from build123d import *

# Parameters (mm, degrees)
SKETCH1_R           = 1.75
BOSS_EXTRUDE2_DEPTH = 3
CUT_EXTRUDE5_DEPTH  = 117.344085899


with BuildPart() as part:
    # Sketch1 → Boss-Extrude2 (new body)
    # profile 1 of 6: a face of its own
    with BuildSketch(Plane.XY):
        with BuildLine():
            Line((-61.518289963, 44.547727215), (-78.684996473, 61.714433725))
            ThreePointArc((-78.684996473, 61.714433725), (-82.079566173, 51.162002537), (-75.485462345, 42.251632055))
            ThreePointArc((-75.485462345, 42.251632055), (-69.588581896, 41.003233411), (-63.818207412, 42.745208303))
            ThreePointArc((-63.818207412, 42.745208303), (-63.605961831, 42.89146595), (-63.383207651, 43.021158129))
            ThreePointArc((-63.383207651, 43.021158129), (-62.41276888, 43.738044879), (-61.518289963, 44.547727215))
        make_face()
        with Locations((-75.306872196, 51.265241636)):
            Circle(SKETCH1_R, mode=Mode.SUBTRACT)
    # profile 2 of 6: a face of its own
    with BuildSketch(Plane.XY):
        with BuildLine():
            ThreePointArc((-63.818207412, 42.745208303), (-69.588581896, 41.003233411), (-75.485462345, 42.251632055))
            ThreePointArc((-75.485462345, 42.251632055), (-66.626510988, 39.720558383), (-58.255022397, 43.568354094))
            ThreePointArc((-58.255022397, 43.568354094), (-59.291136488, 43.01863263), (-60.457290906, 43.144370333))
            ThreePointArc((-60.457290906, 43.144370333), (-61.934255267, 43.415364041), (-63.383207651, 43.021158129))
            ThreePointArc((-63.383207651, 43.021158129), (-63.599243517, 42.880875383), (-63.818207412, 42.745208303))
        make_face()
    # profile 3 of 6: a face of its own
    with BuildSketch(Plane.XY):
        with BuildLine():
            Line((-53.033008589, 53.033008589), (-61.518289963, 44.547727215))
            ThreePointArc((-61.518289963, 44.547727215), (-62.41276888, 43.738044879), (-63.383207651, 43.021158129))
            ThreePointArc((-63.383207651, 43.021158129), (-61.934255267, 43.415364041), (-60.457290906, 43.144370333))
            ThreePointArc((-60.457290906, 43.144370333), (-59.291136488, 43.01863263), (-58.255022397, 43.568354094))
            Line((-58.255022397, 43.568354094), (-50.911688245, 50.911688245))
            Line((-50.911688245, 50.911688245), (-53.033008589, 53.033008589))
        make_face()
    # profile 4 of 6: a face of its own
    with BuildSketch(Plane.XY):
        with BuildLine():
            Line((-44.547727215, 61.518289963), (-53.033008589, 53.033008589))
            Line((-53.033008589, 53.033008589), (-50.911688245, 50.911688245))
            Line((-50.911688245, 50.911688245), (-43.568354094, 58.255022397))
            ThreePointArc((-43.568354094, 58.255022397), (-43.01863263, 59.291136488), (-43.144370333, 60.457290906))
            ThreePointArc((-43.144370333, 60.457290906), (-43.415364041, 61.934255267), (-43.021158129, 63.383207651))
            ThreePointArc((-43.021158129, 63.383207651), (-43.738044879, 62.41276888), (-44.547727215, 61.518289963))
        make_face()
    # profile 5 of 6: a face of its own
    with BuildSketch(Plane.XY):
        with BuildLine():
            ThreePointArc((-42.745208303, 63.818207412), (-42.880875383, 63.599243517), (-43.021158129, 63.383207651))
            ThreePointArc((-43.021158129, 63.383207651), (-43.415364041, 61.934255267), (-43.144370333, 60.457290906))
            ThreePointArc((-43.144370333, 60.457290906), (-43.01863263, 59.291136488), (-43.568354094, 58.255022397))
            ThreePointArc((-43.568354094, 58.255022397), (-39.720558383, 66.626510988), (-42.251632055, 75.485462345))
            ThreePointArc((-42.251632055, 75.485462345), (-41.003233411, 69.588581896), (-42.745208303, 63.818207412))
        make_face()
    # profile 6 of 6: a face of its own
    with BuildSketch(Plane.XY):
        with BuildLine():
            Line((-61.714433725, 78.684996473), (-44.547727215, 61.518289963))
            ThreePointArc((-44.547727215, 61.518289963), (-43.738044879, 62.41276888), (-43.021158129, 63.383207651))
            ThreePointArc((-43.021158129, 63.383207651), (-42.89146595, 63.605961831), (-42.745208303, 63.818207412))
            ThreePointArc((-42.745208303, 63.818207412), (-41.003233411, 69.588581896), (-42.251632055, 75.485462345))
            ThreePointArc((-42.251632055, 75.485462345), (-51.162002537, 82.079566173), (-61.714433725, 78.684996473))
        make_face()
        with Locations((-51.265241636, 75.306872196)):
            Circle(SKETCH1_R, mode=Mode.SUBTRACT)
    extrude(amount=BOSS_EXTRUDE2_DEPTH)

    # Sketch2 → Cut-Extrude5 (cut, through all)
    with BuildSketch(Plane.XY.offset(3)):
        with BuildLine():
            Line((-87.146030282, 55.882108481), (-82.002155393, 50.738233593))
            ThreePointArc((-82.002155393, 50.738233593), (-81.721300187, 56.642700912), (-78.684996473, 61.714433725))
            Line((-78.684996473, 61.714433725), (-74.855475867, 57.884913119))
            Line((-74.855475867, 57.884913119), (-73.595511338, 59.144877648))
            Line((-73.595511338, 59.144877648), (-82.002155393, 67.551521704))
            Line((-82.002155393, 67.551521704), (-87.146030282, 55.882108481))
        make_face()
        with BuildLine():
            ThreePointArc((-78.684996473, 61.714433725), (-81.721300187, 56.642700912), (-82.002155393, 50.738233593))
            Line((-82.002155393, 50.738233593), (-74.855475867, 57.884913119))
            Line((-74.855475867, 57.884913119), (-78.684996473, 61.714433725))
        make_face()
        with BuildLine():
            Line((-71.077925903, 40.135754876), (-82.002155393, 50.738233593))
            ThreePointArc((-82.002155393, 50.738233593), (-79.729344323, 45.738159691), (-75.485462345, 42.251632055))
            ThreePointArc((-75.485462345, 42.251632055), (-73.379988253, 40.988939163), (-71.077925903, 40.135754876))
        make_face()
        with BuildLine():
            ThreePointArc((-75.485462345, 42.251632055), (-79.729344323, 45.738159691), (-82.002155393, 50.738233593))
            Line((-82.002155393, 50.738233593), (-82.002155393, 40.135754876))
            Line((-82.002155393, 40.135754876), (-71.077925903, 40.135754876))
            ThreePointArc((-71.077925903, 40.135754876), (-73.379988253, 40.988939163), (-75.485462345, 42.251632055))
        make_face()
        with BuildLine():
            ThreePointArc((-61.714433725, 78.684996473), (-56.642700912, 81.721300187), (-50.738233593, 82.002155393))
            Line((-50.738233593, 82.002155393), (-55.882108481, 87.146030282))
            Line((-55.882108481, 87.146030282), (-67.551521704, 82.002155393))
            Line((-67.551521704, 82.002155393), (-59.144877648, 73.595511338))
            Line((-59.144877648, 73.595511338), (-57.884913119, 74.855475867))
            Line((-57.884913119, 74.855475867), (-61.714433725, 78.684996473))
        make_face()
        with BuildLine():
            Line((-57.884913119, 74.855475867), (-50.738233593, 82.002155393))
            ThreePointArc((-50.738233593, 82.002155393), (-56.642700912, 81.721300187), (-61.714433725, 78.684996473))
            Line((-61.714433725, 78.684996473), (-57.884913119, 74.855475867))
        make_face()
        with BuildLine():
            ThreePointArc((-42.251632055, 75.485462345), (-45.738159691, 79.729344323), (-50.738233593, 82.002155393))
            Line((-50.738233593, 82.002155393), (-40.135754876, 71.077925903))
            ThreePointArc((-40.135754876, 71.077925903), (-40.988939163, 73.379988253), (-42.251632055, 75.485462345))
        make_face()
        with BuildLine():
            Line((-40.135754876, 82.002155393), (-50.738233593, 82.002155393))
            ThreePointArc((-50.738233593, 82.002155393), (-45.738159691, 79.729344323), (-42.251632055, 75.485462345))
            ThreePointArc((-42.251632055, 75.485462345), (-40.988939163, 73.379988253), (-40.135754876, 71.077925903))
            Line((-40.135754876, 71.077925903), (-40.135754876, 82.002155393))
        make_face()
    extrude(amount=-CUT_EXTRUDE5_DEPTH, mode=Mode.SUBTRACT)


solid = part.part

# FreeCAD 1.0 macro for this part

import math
import FreeCAD as App
import Part
import Sketcher
Q = App.Units.Quantity

doc = App.newDocument("Part")
params = doc.addObject("Spreadsheet::Sheet", "Params")
for row, (alias, value) in enumerate([
    ("sketch1_diameter", "3.5 mm"),
    ("sketch1_length", "24 mm"),
    ("pad1_length", "3 mm"),
], start=1):
    params.set(f"A{row}", alias)
    params.set(f"B{row}", "=" + value)
    params.setAlias(f"B{row}", alias)

body = doc.addObject("PartDesign::Body", "Body")

# Sketch on XY plane
sketch1 = doc.addObject("Sketcher::SketchObject", "Sketch")
body.addObject(sketch1)
sketch1.AttachmentSupport = (doc.XY_Plane, [""])
sketch1.MapMode = "FlatFace"
sketch1.addGeometry(Part.LineSegment(App.Vector(-61.5, 44.5, 0), App.Vector(-78.7, 61.7, 0)), False)
sketch1.addGeometry(Part.ArcOfCircle(Part.Circle(App.Vector(-70.1, 53.1, 0), App.Vector(0, 0, 1), 12.1), math.radians(135), math.radians(244)), False)
sketch1.addGeometry(Part.ArcOfCircle(Part.Circle(App.Vector(-67.6, 53, 0), App.Vector(0, 0, 1), 13.3), math.radians(-126), math.radians(-45)), False)
sketch1.addGeometry(Part.LineSegment(App.Vector(-58.3, 43.6, 0), App.Vector(-50.9, 50.9, 0)), False)
sketch1.addGeometry(Part.LineSegment(App.Vector(-50.9, 50.9, 0), App.Vector(-43.6, 58.3, 0)), False)
sketch1.addGeometry(Part.ArcOfCircle(Part.Circle(App.Vector(-53, 67.6, 0), App.Vector(0, 0, 1), 13.3), math.radians(-45), math.radians(36)), False)
sketch1.addGeometry(Part.ArcOfCircle(Part.Circle(App.Vector(-53.1, 70.1, 0), App.Vector(0, 0, 1), 12.1), math.radians(26), math.radians(135)), False)
sketch1.addGeometry(Part.LineSegment(App.Vector(-61.7, 78.7, 0), App.Vector(-44.5, 61.5, 0)), False)
sketch1.addGeometry(Part.LineSegment(App.Vector(-44.5, 61.5, 0), App.Vector(-61.5, 44.5, 0)), False)
sketch1.addGeometry(Part.ArcOfCircle(Part.Circle(App.Vector(-61.8, 40, 0), App.Vector(0, 0, 1), 3.4), math.radians(118.03), math.radians(126.75)), False)
sketch1.addGeometry(Part.ArcOfCircle(Part.Circle(App.Vector(-70.1, 53.1, 0), App.Vector(0, 0, 1), 12.1), math.radians(-58.83), math.radians(-56.39)), False)
sketch1.addGeometry(Part.Circle(App.Vector(-75.3, 51.3, 0), App.Vector(0, 0, 1), 1.8), False)
sketch1.addGeometry(Part.Circle(App.Vector(-51.3, 75.3, 0), App.Vector(0, 0, 1), 1.8), False)
sketch1.addGeometry(Part.ArcOfCircle(Part.Circle(App.Vector(-40, 61.8, 0), App.Vector(0, 0, 1), 3.4), math.radians(143.25), math.radians(151.97)), False)
sketch1.addGeometry(Part.ArcOfCircle(Part.Circle(App.Vector(-53.1, 70.1, 0), App.Vector(0, 0, 1), 12.1), math.radians(-33.61), math.radians(-31.17)), False)
sketch1.addConstraint(Sketcher.Constraint("Coincident", 0, 2, 1, 1))
sketch1.addConstraint(Sketcher.Constraint("Coincident", 1, 2, 2, 1))
sketch1.addConstraint(Sketcher.Constraint("Tangent", 2, 2, 3, 1))
sketch1.addConstraint(Sketcher.Constraint("Coincident", 3, 2, 4, 1))
sketch1.addConstraint(Sketcher.Constraint("Tangent", 4, 2, 5, 1))
sketch1.addConstraint(Sketcher.Constraint("Coincident", 5, 2, 6, 1))
sketch1.addConstraint(Sketcher.Constraint("Coincident", 6, 2, 7, 1))
sketch1.addConstraint(Sketcher.Constraint("Coincident", 7, 2, 8, 1))
sketch1.addConstraint(Sketcher.Constraint("Coincident", 8, 2, 0, 1))
sketch1.addConstraint(Sketcher.Constraint("Coincident", 9, 1, 10, 2))
sketch1.addConstraint(Sketcher.Constraint("Coincident", 10, 1, 9, 2))
sketch1.addConstraint(Sketcher.Constraint("Coincident", 13, 1, 14, 2))
sketch1.addConstraint(Sketcher.Constraint("Coincident", 14, 1, 13, 2))
sketch1.addConstraint(Sketcher.Constraint("Coincident", 10, 3, 1, 3))
sketch1.addConstraint(Sketcher.Constraint("Coincident", 14, 3, 6, 3))
sketch1.addConstraint(Sketcher.Constraint("Equal", 2, 5))
sketch1.addConstraint(Sketcher.Constraint("Equal", 1, 6))
sketch1.addConstraint(Sketcher.Constraint("Equal", 6, 10))
sketch1.addConstraint(Sketcher.Constraint("Equal", 11, 12))
sketch1.addConstraint(Sketcher.Constraint("Equal", 9, 13))
sketch1.addConstraint(Sketcher.Constraint("Equal", 10, 14))
sketch1.addConstraint(Sketcher.Constraint("Perpendicular", 0, 3))
sketch1.addConstraint(Sketcher.Constraint("Parallel", 3, 4))
sketch1.addConstraint(Sketcher.Constraint("Perpendicular", 4, 7))
sketch1.addConstraint(Sketcher.Constraint("Perpendicular", 7, 8))
sketch1.addConstraint(Sketcher.Constraint("Equal", 3, 4))
sketch1.addConstraint(Sketcher.Constraint("Equal", 0, 7))
sketch1.addConstraint(Sketcher.Constraint("Diameter", 11, 3.5))
sketch1.addConstraint(Sketcher.Constraint("Angle", 0, Q("135 deg")))
sketch1.addConstraint(Sketcher.Constraint("Distance", 8, 24.0))
sketch1.addConstraint(Sketcher.Constraint("Radius", 2, 13.268899))
sketch1.addConstraint(Sketcher.Constraint("Radius", 9, 3.38675))
sketch1.addConstraint(Sketcher.Constraint("Radius", 1, 12.138695))
sketch1.addConstraint(Sketcher.Constraint("DistanceX", 10, 1, 9, 1, 0.435))
sketch1.addConstraint(Sketcher.Constraint("DistanceY", 14, 1, 13, 1, 0.435))
sketch1.addConstraint(Sketcher.Constraint("DistanceY", 2, 3, 1, 3, 0.180198))
sketch1.addConstraint(Sketcher.Constraint("DistanceX", 6, 3, 5, 3, 0.180198))
sketch1.addConstraint(Sketcher.Constraint("DistanceX", 1, 3, 12, 3, 18.836402))
sketch1.addConstraint(Sketcher.Constraint("DistanceX", 1, 2, 9, 3, 13.693699))
sketch1.addConstraint(Sketcher.Constraint("DistanceY", 13, 3, 5, 2, 13.693699))
sketch1.addConstraint(Sketcher.Constraint("DistanceX", 6, 2, 5, 2, 19.462802))
sketch1.addConstraint(Sketcher.Constraint("Distance", 0, 24.277389))
sketch1.addConstraint(Sketcher.Constraint("DistanceY", -1, 1, 1, 3, 53.13108))
sketch1.addConstraint(Sketcher.Constraint("DistanceX", 2, 3, -1, 1, 67.637551))
sketch1.addConstraint(Sketcher.Constraint("DistanceY", -1, 1, 5, 3, 67.637551))
sketch1.addConstraint(Sketcher.Constraint("DistanceY", -1, 1, 11, 3, 51.265242))
sketch1.addConstraint(Sketcher.Constraint("DistanceX", 12, 3, -1, 1, 51.265242))
sketch1.addConstraint(Sketcher.Constraint("DistanceX", 11, 3, 10, 3, 5.205228))
sketch1.addConstraint(Sketcher.Constraint("DistanceY", 6, 3, 12, 3, 5.205229))
sketch1.setExpression("Constraints[27]", "Params.sketch1_diameter")
sketch1.setExpression("Constraints[29]", "Params.sketch1_length")
pad1 = doc.addObject("PartDesign::Pad", "Pad")
body.addObject(pad1)
pad1.Profile = sketch1
pad1.setExpression("Length", "Params.pad1_length")

# Sketch on XY plane
sketch2 = doc.addObject("Sketcher::SketchObject", "Sketch001")
body.addObject(sketch2)
sketch2.AttachmentSupport = (doc.XY_Plane, [""])
sketch2.MapMode = "FlatFace"
sketch2.AttachmentOffset = App.Placement(App.Vector(0, 0, 3), App.Rotation())
sketch2.addGeometry(Part.LineSegment(App.Vector(-87, 56, 0), App.Vector(-82, 51, 0)), False)
sketch2.addGeometry(Part.LineSegment(App.Vector(-82, 51, 0), App.Vector(-74, 59, 0)), False)
sketch2.addGeometry(Part.LineSegment(App.Vector(-74, 59, 0), App.Vector(-82, 68, 0)), False)
sketch2.addGeometry(Part.LineSegment(App.Vector(-82, 68, 0), App.Vector(-87, 56, 0)), False)
sketch2.addGeometry(Part.LineSegment(App.Vector(-71, 40, 0), App.Vector(-82, 51, 0)), False)
sketch2.addGeometry(Part.LineSegment(App.Vector(-82, 51, 0), App.Vector(-82, 40, 0)), False)
sketch2.addGeometry(Part.LineSegment(App.Vector(-82, 40, 0), App.Vector(-71, 40, 0)), False)
sketch2.addGeometry(Part.LineSegment(App.Vector(-51, 82, 0), App.Vector(-56, 87, 0)), False)
sketch2.addGeometry(Part.LineSegment(App.Vector(-56, 87, 0), App.Vector(-68, 82, 0)), False)
sketch2.addGeometry(Part.LineSegment(App.Vector(-68, 82, 0), App.Vector(-59, 74, 0)), False)
sketch2.addGeometry(Part.LineSegment(App.Vector(-59, 74, 0), App.Vector(-51, 82, 0)), False)
sketch2.addGeometry(Part.LineSegment(App.Vector(-51, 82, 0), App.Vector(-40, 71, 0)), False)
sketch2.addGeometry(Part.LineSegment(App.Vector(-40, 71, 0), App.Vector(-40, 82, 0)), False)
sketch2.addGeometry(Part.LineSegment(App.Vector(-40, 82, 0), App.Vector(-51, 82, 0)), False)
sketch2.addConstraint(Sketcher.Constraint("Coincident", 0, 2, 1, 1))
sketch2.addConstraint(Sketcher.Constraint("Coincident", 1, 2, 2, 1))
sketch2.addConstraint(Sketcher.Constraint("Coincident", 2, 2, 3, 1))
sketch2.addConstraint(Sketcher.Constraint("Coincident", 3, 2, 0, 1))
sketch2.addConstraint(Sketcher.Constraint("Coincident", 4, 2, 5, 1))
sketch2.addConstraint(Sketcher.Constraint("Coincident", 5, 2, 6, 1))
sketch2.addConstraint(Sketcher.Constraint("Coincident", 6, 2, 4, 1))
sketch2.addConstraint(Sketcher.Constraint("Coincident", 7, 2, 8, 1))
sketch2.addConstraint(Sketcher.Constraint("Coincident", 8, 2, 9, 1))
sketch2.addConstraint(Sketcher.Constraint("Coincident", 9, 2, 10, 1))
sketch2.addConstraint(Sketcher.Constraint("Coincident", 10, 2, 7, 1))
sketch2.addConstraint(Sketcher.Constraint("Coincident", 11, 2, 12, 1))
sketch2.addConstraint(Sketcher.Constraint("Coincident", 12, 2, 13, 1))
sketch2.addConstraint(Sketcher.Constraint("Coincident", 13, 2, 11, 1))
sketch2.addConstraint(Sketcher.Constraint("Vertical", 5))
sketch2.addConstraint(Sketcher.Constraint("Horizontal", 6))
sketch2.addConstraint(Sketcher.Constraint("Vertical", 12))
sketch2.addConstraint(Sketcher.Constraint("Horizontal", 13))
sketch2.addConstraint(Sketcher.Constraint("Coincident", 4, 2, 0, 2))
sketch2.addConstraint(Sketcher.Constraint("Coincident", 13, 2, 10, 2))
sketch2.addConstraint(Sketcher.Constraint("Perpendicular", 0, 1))
sketch2.addConstraint(Sketcher.Constraint("Perpendicular", 1, 2))
sketch2.addConstraint(Sketcher.Constraint("Parallel", 2, 7))
sketch2.addConstraint(Sketcher.Constraint("Parallel", 7, 9))
sketch2.addConstraint(Sketcher.Constraint("Perpendicular", 9, 10))
sketch2.addConstraint(Sketcher.Constraint("Horizontal", 8, 2, 10, 2))
sketch2.addConstraint(Sketcher.Constraint("Vertical", 0, 2, 2, 2))
sketch2.addConstraint(Sketcher.Constraint("Equal", 13, 5))
sketch2.addConstraint(Sketcher.Constraint("Equal", 6, 12))
sketch2.addConstraint(Sketcher.Constraint("Equal", 1, 2))
sketch2.addConstraint(Sketcher.Constraint("Equal", 0, 7))
sketch2.addConstraint(Sketcher.Constraint("Equal", 3, 8))
sketch2.addConstraint(Sketcher.Constraint("DistanceX", 6, 1, 6, 2, 10.924229))
sketch2.addConstraint(Sketcher.Constraint("DistanceX", 13, 2, 13, 1, 10.602479))
sketch2.addConstraint(Sketcher.Constraint("Distance", 1, 11.88879))
sketch2.addConstraint(Sketcher.Constraint("Distance", 3, 12.752829))
sketch2.addConstraint(Sketcher.Constraint("DistanceX", 1, 2, -1, 1, 73.595511))
sketch2.addConstraint(Sketcher.Constraint("DistanceY", -1, 1, 2, 2, 67.551522))
sketch2.addConstraint(Sketcher.Constraint("DistanceX", 7, 2, -1, 1, 55.882108))
sketch2.addConstraint(Sketcher.Constraint("DistanceY", -1, 1, 7, 2, 87.14603))
pocket1 = doc.addObject("PartDesign::Pocket", "Pocket")
body.addObject(pocket1)
pocket1.Profile = sketch2
pocket1.Type = "ThroughAll"

doc.recompute()
